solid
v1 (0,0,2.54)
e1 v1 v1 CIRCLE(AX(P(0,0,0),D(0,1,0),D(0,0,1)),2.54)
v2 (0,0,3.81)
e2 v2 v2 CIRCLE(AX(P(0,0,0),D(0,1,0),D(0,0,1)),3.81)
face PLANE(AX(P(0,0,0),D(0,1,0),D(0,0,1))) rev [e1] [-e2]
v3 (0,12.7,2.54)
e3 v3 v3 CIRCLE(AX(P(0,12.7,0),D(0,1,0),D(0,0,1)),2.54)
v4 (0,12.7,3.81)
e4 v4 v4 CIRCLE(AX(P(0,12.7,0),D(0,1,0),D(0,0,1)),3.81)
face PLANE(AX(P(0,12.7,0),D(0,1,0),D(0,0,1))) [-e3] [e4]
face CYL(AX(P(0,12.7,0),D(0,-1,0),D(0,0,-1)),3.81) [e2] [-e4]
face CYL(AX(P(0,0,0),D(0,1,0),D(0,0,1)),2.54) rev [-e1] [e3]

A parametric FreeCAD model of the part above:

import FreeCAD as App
import Part
import Sketcher
from FreeCAD import Vector
Q = App.Units.Quantity

doc = App.newDocument("Part")
params = doc.addObject("Spreadsheet::Sheet", "Params")
for row, (alias, value) in enumerate([
    ("sketch1_diameter", "0.3 in"),
    ("pad1_length", "0.5 in"),
    ("sketch2_diameter", "0.2 in"),
    ("pocket1_length", "0.5 in"),
], start=1):
    params.set(f"A{row}", alias)
    params.set(f"B{row}", "=" + value)
    params.setAlias(f"B{row}", alias)

body = doc.addObject("PartDesign::Body", "Body")

# Sketch on XZ plane
sketch1 = body.newObject("Sketcher::SketchObject", "Sketch")
sketch1.AttachmentSupport = (doc.getObject("XZ_Plane"), [""])
sketch1.MapMode = "FlatFace"
sketch1.addGeometry(Part.Circle(Vector(0, 0, 0), Vector(0, 0, 1), 3.8), False)
sketch1.addConstraint([
    Sketcher.Constraint("Coincident", 0, 3, -1, 1),
    Sketcher.Constraint("Diameter", 0, Q("0.3 in")),
])
sketch1.setExpression("Constraints[1]", "Params.sketch1_diameter")
pad1 = body.newObject("PartDesign::Pad", "Pad")
pad1.Profile = sketch1
pad1.setExpression("Length", "Params.pad1_length")
pad1.Reversed = True

# Sketch on XZ plane
sketch2 = body.newObject("Sketcher::SketchObject", "Sketch001")
sketch2.AttachmentSupport = (doc.getObject("XZ_Plane"), [""])
sketch2.MapMode = "FlatFace"
sketch2.AttachmentOffset = App.Placement(Vector(0, 0, -0.5 * 25.4), App.Rotation())
sketch2.addGeometry(Part.Circle(Vector(0, 0, 0), Vector(0, 0, 1), 2.5), False)
sketch2.addConstraint([
    Sketcher.Constraint("Coincident", 0, 3, -1, 1),
    Sketcher.Constraint("Diameter", 0, Q("0.2 in")),
])
sketch2.setExpression("Constraints[1]", "Params.sketch2_diameter")
pocket1 = body.newObject("PartDesign::Pocket", "Pocket")
pocket1.Profile = sketch2
pocket1.setExpression("Length", "Params.pocket1_length")
pocket1.Reversed = True

doc.recompute()
